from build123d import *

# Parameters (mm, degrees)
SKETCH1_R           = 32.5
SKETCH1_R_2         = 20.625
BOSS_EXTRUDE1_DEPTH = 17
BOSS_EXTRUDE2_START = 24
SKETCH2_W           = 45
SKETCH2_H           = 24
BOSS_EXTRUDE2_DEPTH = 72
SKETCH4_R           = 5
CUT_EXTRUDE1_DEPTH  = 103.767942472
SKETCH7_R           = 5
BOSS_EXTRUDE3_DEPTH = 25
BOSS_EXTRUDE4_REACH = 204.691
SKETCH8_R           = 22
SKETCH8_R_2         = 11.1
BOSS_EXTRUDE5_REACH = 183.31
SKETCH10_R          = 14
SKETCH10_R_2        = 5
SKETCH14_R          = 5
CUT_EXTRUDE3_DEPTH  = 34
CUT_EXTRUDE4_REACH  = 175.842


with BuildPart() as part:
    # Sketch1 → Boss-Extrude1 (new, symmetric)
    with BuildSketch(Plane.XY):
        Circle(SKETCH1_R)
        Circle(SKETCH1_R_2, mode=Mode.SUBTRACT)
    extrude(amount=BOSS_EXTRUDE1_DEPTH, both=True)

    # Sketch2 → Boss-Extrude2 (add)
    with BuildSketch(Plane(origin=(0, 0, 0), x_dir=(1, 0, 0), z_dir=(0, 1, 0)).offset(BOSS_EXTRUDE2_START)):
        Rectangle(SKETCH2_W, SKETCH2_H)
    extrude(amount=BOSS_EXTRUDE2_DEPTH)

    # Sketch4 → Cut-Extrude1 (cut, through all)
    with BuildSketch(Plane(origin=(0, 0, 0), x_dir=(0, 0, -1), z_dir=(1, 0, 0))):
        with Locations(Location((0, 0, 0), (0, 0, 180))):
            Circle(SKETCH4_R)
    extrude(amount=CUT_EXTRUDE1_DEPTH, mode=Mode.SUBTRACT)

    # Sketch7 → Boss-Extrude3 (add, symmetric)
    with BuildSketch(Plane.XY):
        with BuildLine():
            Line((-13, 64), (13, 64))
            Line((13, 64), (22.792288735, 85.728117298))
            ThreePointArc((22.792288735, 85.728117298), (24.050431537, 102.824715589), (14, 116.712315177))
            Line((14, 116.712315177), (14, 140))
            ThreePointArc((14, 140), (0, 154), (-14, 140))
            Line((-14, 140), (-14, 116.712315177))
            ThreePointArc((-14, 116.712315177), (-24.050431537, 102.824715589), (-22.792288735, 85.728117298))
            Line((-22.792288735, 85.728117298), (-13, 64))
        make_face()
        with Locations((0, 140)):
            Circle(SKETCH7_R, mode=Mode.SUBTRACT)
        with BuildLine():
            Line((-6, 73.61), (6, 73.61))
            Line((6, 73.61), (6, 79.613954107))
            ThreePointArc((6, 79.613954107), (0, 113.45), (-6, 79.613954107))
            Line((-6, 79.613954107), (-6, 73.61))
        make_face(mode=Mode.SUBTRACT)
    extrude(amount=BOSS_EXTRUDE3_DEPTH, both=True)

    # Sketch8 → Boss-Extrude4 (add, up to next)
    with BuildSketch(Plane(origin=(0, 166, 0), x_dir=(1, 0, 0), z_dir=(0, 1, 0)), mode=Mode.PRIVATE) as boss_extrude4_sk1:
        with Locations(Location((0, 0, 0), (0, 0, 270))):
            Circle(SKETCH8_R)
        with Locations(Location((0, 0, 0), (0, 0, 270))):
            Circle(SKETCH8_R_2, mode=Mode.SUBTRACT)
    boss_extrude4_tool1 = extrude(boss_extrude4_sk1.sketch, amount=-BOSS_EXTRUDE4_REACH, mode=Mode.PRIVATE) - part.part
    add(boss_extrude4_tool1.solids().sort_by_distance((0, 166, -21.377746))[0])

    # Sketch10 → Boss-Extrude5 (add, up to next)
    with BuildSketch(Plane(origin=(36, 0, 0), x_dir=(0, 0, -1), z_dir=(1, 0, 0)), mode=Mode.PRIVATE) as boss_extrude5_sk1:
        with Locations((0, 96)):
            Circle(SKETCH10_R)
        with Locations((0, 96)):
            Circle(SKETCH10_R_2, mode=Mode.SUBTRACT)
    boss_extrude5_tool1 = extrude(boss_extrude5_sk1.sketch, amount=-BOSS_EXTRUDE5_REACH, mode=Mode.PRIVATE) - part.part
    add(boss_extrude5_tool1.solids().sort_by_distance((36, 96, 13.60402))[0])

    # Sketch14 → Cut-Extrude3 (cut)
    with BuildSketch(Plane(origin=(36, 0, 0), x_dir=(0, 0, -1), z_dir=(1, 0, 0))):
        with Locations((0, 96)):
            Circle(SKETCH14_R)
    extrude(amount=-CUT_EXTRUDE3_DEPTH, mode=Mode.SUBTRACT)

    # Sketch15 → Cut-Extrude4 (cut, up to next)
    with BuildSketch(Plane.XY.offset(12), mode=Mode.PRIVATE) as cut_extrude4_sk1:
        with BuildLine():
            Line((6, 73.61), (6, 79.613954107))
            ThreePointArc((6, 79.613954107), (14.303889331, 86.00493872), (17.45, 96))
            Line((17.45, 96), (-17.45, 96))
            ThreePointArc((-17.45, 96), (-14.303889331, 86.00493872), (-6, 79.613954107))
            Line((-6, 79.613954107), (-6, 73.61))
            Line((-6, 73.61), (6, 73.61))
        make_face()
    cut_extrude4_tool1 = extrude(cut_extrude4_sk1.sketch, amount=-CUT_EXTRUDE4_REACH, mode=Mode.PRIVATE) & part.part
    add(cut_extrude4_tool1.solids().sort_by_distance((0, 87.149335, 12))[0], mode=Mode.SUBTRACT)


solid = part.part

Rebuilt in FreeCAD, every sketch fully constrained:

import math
import FreeCAD as App
import Part
import Sketcher

V = App.Vector
Q = App.Units.Quantity


def add_polygon(sketch, points):
    """Adds a closed chain of lines whose ends are joined by coincident constraints."""
    first, n = sketch.GeometryCount, len(points)
    for a, b in zip(points, points[1:] + points[:1]):
        sketch.addGeometry(Part.LineSegment(App.Vector(*a, 0), App.Vector(*b, 0)), False)
    for i in range(n):
        sketch.addConstraint(Sketcher.Constraint("Coincident", first + i, 2, first + (i + 1) % n, 1))

doc = App.newDocument("Part")
body = doc.addObject("PartDesign::Body", "Body")

sketch1 = body.newObject("Sketcher::SketchObject", "Sketch")
sketch1.AttachmentSupport = (doc.getObject("XY_Plane"), [""])
sketch1.MapMode = "FlatFace"
sketch1.addGeometry([
    Part.Circle(V(0, 0, 0), V(0, 0, 1), 32.5),
    Part.Circle(V(0, 0, 0), V(0, 0, 1), 20.625),
], False)
sketch1.addConstraint([
    Sketcher.Constraint("Coincident", 0, 3, -1, 1),
    Sketcher.Constraint("Coincident", 1, 3, -1, 1),
    Sketcher.Constraint("Diameter", 0, Q("65 mm")),
    Sketcher.Constraint("Diameter", 1, Q("41.25 mm")),
])
pad1 = body.newObject("PartDesign::Pad", "Pad")
pad1.Profile = sketch1
pad1.Length = 34
pad1.Midplane = True

sketch2 = body.newObject("Sketcher::SketchObject", "Sketch001")
sketch2.AttachmentSupport = (doc.getObject("XZ_Plane"), [""])
sketch2.MapMode = "FlatFace"
sketch2.AttachmentOffset = App.Placement(V(0, 0, -24), App.Rotation())
add_polygon(sketch2, [(-22.5, -12), (-22.5, 12), (22.5, 12), (22.5, -12)])
sketch2.addConstraint([
    Sketcher.Constraint("Vertical", 0),
    Sketcher.Constraint("Horizontal", 1),
    Sketcher.Constraint("Vertical", 2),
    Sketcher.Constraint("Horizontal", 3),
    Sketcher.Constraint("Symmetric", 0, 2, 2, 2, -1, 1),
    Sketcher.Constraint("DistanceX", 1, 1, 1, 2, Q("45 mm")),
    Sketcher.Constraint("DistanceY", 0, 1, 0, 2, Q("24 mm")),
])
pad2 = body.newObject("PartDesign::Pad", "Pad001")
pad2.Profile = sketch2
pad2.Length = 72
pad2.Reversed = True

sketch3 = body.newObject("Sketcher::SketchObject", "Sketch002")
sketch3.AttachmentSupport = (doc.getObject("YZ_Plane"), [""])
sketch3.MapMode = "FlatFace"
sketch3.addGeometry(Part.Circle(V(0, 0, 0), V(0, 0, 1), 5), False)
sketch3.addConstraint([
    Sketcher.Constraint("Coincident", 0, 3, -1, 1),
    Sketcher.Constraint("Diameter", 0, Q("10 mm")),
])
pocket1 = body.newObject("PartDesign::Pocket", "Pocket")
pocket1.Profile = sketch3
pocket1.Type = "ThroughAll"
pocket1.Reversed = True

sketch4 = body.newObject("Sketcher::SketchObject", "Sketch003")
sketch4.AttachmentSupport = (doc.getObject("XY_Plane"), [""])
sketch4.MapMode = "FlatFace"
sketch4.addGeometry([
    Part.LineSegment(V(-13, 64, 0), V(13, 64, 0)),
    Part.LineSegment(V(13, 64, 0), V(22.792289, 85.728117, 0)),
    Part.ArcOfCircle(Part.Circle(V(0, 96, 0), V(0, 0, 1), 25), math.radians(-24.259832), math.radians(55.944202)),
    Part.LineSegment(V(14, 116.712315, 0), V(14, 140, 0)),
    Part.ArcOfCircle(Part.Circle(V(0, 140, 0), V(0, 0, 1), 14), math.radians(0), math.radians(180)),
    Part.LineSegment(V(-14, 140, 0), V(-14, 116.712315, 0)),
    Part.ArcOfCircle(Part.Circle(V(0, 96, 0), V(0, 0, 1), 25), math.radians(124.055798), math.radians(204.259832)),
    Part.LineSegment(V(-22.792289, 85.728117, 0), V(-13, 64, 0)),
    Part.LineSegment(V(6, 73.61, 0), V(-6, 73.61, 0)),
    Part.LineSegment(V(-6, 73.61, 0), V(-6, 79.613954, 0)),
    Part.ArcOfCircle(Part.Circle(V(0, 96, 0), V(0, 0, 1), 17.45), math.radians(-69.889027), math.radians(249.889027)),
    Part.LineSegment(V(6, 79.613954, 0), V(6, 73.61, 0)),
    Part.Circle(V(0, 140, 0), V(0, 0, 1), 5),
], False)
sketch4.addConstraint([
    Sketcher.Constraint("Coincident", 0, 2, 1, 1),
    Sketcher.Constraint("Tangent", 1, 2, 2, 1),
    Sketcher.Constraint("Coincident", 2, 2, 3, 1),
    Sketcher.Constraint("Tangent", 3, 2, 4, 1),
    Sketcher.Constraint("Tangent", 4, 2, 5, 1),
    Sketcher.Constraint("Coincident", 5, 2, 6, 1),
    Sketcher.Constraint("Tangent", 6, 2, 7, 1),
    Sketcher.Constraint("Coincident", 7, 2, 0, 1),
    Sketcher.Constraint("Coincident", 8, 2, 9, 1),
    Sketcher.Constraint("Coincident", 9, 2, 10, 2),
    Sketcher.Constraint("Coincident", 10, 1, 11, 1),
    Sketcher.Constraint("Coincident", 11, 2, 8, 1),
    Sketcher.Constraint("Horizontal", 0),
    Sketcher.Constraint("Vertical", 3),
    Sketcher.Constraint("Vertical", 5),
    Sketcher.Constraint("Horizontal", 8),
    Sketcher.Constraint("Vertical", 9),
    Sketcher.Constraint("Vertical", 11),
    Sketcher.Constraint("Coincident", 6, 3, 2, 3),
    Sketcher.Constraint("Coincident", 10, 3, 2, 3),
    Sketcher.Constraint("Coincident", 12, 3, 4, 3),
    Sketcher.Constraint("Equal", 2, 6),
    Sketcher.Constraint("Symmetric", 2, 2, 5, 2, -2),
    Sketcher.Constraint("Horizontal", 1, 2, 6, 2),
    Sketcher.Constraint("Horizontal", 9, 2, 10, 1),
    Sketcher.Constraint("Diameter", 12, Q("10 mm")),
    Sketcher.Constraint("Radius", 2, Q("25 mm")),
    Sketcher.Constraint("Radius", 4, Q("14 mm")),
    Sketcher.Constraint("DistanceX", 0, 1, 0, 2, Q("26 mm")),
    Sketcher.Constraint("DistanceX", 8, 2, 8, 1, Q("12 mm")),
    Sketcher.Constraint("Radius", 10, Q("17.45 mm")),
    Sketcher.Constraint("DistanceY", -1, 1, 2, 3, Q("96 mm")),
    Sketcher.Constraint("DistanceY", -1, 1, 4, 3, Q("140 mm")),
    Sketcher.Constraint("DistanceY", -1, 1, 0, 2, Q("64 mm")),
    Sketcher.Constraint("DistanceY", -1, 1, 8, 2, Q("73.61 mm")),
])
pad3 = body.newObject("PartDesign::Pad", "Pad002")
pad3.Profile = sketch4
pad3.Length = 50
pad3.Midplane = True

sketch5 = body.newObject("Sketcher::SketchObject", "Sketch004")
sketch5.AttachmentSupport = (doc.getObject("XZ_Plane"), [""])
sketch5.MapMode = "FlatFace"
sketch5.AttachmentOffset = App.Placement(V(0, 0, -166), App.Rotation())
sketch5.addGeometry([
    Part.Circle(V(0, 0, 0), V(0, 0, 1), 22),
    Part.Circle(V(0, 0, 0), V(0, 0, 1), 11.1),
], False)
sketch5.addConstraint([
    Sketcher.Constraint("Coincident", 0, 3, -1, 1),
    Sketcher.Constraint("Coincident", 1, 3, -1, 1),
    Sketcher.Constraint("Diameter", 0, Q("44 mm")),
    Sketcher.Constraint("Diameter", 1, Q("22.2 mm")),
])
pad4 = body.newObject("PartDesign::Pad", "Pad003")
pad4.Profile = sketch5
pad4.Type = "UpToFirst"

sketch6 = body.newObject("Sketcher::SketchObject", "Sketch005")
sketch6.AttachmentSupport = (doc.getObject("YZ_Plane"), [""])
sketch6.MapMode = "FlatFace"
sketch6.AttachmentOffset = App.Placement(V(0, 0, 36), App.Rotation())
sketch6.addGeometry([
    Part.Circle(V(96, 0, 0), V(0, 0, 1), 14),
    Part.Circle(V(96, 0, 0), V(0, 0, 1), 5),
], False)
sketch6.addConstraint([
    Sketcher.Constraint("Coincident", 1, 3, 0, 3),
    Sketcher.Constraint("PointOnObject", 0, 3, -1),
    Sketcher.Constraint("Diameter", 0, Q("28 mm")),
    Sketcher.Constraint("Diameter", 1, Q("10 mm")),
    Sketcher.Constraint("DistanceX", -1, 1, 0, 3, Q("96 mm")),
])
pad5 = body.newObject("PartDesign::Pad", "Pad004")
pad5.Profile = sketch6
pad5.Type = "UpToFirst"
pad5.Reversed = True

sketch7 = body.newObject("Sketcher::SketchObject", "Sketch006")
sketch7.AttachmentSupport = (doc.getObject("YZ_Plane"), [""])
sketch7.MapMode = "FlatFace"
sketch7.AttachmentOffset = App.Placement(V(0, 0, 36), App.Rotation())
sketch7.addGeometry(Part.Circle(V(96, 0, 0), V(0, 0, 1), 5), False)
sketch7.addConstraint([
    Sketcher.Constraint("PointOnObject", 0, 3, -1),
    Sketcher.Constraint("Diameter", 0, Q("10 mm")),
    Sketcher.Constraint("DistanceX", -1, 1, 0, 3, Q("96 mm")),
])
pocket2 = body.newObject("PartDesign::Pocket", "Pocket001")
pocket2.Profile = sketch7
pocket2.Length = 34

sketch8 = body.newObject("Sketcher::SketchObject", "Sketch007")
sketch8.AttachmentSupport = (doc.getObject("XY_Plane"), [""])
sketch8.MapMode = "FlatFace"
sketch8.AttachmentOffset = App.Placement(V(0, 0, 12), App.Rotation())
sketch8.addGeometry([
    Part.LineSegment(V(6, 73.61, 0), V(6, 79.613954, 0)),
    Part.ArcOfCircle(Part.Circle(V(0, 96, 0), V(0, 0, 1), 17.45), math.radians(-69.889027), math.radians(0)),
    Part.LineSegment(V(17.45, 96, 0), V(-17.45, 96, 0)),
    Part.ArcOfCircle(Part.Circle(V(0, 96, 0), V(0, 0, 1), 17.45), math.radians(-180), math.radians(-110.110973)),
    Part.LineSegment(V(-6, 79.613954, 0), V(-6, 73.61, 0)),
    Part.LineSegment(V(-6, 73.61, 0), V(6, 73.61, 0)),
], False)
sketch8.addConstraint([
    Sketcher.Constraint("Coincident", 0, 2, 1, 1),
    Sketcher.Constraint("Coincident", 1, 2, 2, 1),
    Sketcher.Constraint("Coincident", 2, 2, 3, 1),
    Sketcher.Constraint("Coincident", 3, 2, 4, 1),
    Sketcher.Constraint("Coincident", 4, 2, 5, 1),
    Sketcher.Constraint("Coincident", 5, 2, 0, 1),
    Sketcher.Constraint("Vertical", 0),
    Sketcher.Constraint("Horizontal", 2),
    Sketcher.Constraint("Vertical", 4),
    Sketcher.Constraint("Horizontal", 5),
    Sketcher.Constraint("Coincident", 3, 3, 1, 3),
    Sketcher.Constraint("Equal", 1, 3),
    Sketcher.Constraint("Symmetric", 0, 2, 3, 2, -2),
    Sketcher.Constraint("Horizontal", 3, 3, 1, 2),
    Sketcher.Constraint("DistanceX", 5, 1, 5, 2, Q("12 mm")),
    Sketcher.Constraint("Radius", 1, Q("17.45 mm")),
    Sketcher.Constraint("DistanceY", -1, 1, 1, 3, Q("96 mm")),
    Sketcher.Constraint("DistanceY", -1, 1, 4, 2, Q("73.61 mm")),
])
pocket3 = body.newObject("PartDesign::Pocket", "Pocket002")
pocket3.Profile = sketch8
pocket3.Type = "UpToFirst"

doc.recompute()
